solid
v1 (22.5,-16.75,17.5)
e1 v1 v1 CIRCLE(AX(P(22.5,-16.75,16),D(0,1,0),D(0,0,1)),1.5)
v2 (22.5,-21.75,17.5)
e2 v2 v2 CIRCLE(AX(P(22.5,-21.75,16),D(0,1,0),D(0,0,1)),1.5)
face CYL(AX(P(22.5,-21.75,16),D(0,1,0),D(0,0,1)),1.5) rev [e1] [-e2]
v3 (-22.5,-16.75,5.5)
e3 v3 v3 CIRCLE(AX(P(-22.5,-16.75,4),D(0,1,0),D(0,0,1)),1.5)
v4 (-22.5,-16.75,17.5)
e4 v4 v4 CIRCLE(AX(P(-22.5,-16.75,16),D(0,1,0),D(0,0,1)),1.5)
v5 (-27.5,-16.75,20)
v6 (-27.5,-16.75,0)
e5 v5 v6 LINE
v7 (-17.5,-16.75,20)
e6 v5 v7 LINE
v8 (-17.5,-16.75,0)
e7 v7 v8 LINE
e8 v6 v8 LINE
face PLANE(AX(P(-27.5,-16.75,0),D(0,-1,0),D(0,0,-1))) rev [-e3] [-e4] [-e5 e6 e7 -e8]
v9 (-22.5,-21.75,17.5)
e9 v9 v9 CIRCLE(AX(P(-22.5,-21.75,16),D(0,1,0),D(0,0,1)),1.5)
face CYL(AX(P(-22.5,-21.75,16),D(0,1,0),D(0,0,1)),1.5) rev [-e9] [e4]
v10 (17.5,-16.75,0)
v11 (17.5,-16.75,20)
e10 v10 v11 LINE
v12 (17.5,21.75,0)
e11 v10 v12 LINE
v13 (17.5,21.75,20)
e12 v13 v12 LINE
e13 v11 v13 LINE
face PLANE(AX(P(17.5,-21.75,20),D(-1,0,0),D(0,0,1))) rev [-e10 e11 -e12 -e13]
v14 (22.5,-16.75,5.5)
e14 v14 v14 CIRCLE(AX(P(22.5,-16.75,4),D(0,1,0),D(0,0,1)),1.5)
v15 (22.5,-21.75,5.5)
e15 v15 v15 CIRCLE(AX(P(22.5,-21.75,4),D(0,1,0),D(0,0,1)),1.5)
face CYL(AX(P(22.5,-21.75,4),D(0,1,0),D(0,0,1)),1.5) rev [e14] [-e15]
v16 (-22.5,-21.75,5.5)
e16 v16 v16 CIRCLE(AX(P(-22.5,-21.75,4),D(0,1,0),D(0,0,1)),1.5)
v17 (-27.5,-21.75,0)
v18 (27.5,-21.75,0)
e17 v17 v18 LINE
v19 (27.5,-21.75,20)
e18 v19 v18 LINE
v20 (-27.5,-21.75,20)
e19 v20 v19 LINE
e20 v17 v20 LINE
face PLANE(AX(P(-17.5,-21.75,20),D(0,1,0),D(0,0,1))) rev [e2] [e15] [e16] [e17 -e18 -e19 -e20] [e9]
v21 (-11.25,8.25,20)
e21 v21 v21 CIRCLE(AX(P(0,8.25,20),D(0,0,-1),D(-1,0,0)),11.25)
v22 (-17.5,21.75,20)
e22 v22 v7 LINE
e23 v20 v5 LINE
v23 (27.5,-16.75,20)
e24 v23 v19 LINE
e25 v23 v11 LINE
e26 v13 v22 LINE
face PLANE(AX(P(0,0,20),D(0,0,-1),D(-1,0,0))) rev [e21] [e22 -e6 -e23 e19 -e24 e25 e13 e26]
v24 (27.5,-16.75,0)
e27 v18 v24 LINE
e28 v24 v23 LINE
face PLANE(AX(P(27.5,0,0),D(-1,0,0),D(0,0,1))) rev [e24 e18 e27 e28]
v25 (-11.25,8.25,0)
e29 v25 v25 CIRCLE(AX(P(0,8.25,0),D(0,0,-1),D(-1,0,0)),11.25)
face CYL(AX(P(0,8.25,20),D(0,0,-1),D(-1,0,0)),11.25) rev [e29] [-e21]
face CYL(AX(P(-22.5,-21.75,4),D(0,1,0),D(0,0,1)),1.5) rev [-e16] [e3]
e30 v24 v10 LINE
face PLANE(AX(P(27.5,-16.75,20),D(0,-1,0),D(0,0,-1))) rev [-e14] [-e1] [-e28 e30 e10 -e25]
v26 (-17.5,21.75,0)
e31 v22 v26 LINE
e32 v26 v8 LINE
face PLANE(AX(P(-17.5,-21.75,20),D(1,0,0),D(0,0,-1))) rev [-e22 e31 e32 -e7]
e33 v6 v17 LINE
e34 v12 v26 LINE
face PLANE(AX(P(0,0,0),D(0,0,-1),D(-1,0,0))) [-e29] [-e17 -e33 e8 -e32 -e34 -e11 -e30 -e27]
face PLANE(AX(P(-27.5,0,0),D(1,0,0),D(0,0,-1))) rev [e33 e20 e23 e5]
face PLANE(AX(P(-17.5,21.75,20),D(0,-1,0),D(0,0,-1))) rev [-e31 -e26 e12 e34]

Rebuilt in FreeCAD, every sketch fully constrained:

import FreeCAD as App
import Part
import Sketcher
Q = App.Units.Quantity


def add_polygon(sketch, points):
    """Adds a closed chain of lines whose ends are joined by coincident constraints."""
    first, n = sketch.GeometryCount, len(points)
    for a, b in zip(points, points[1:] + points[:1]):
        sketch.addGeometry(Part.LineSegment(App.Vector(*a, 0), App.Vector(*b, 0)), False)
    for i in range(n):
        sketch.addConstraint(Sketcher.Constraint("Coincident", first + i, 2, first + (i + 1) % n, 1))

doc = App.newDocument("Part")
body = doc.addObject("PartDesign::Body", "Body")

# Sketch on XY plane
sketch1 = body.newObject("Sketcher::SketchObject", "Sketch")
sketch1.AttachmentSupport = (doc.getObject("XY_Plane"), [""])
sketch1.MapMode = "FlatFace"
add_polygon(sketch1, [(-18, 22), (-18, -22), (18, -22), (18, 22)])  # lines 0-3
sketch1.addConstraint([
    Sketcher.Constraint("Vertical", 0),
    Sketcher.Constraint("Horizontal", 1),
    Sketcher.Constraint("Vertical", 2),
    Sketcher.Constraint("Horizontal", 3),
    Sketcher.Constraint("Symmetric", 0, 2, 2, 2, -1, 1),
    Sketcher.Constraint("DistanceX", 1, 1, 1, 2, Q("35 mm")),
    Sketcher.Constraint("DistanceY", 0, 2, 0, 1, Q("43.5 mm")),
])
pad1 = body.newObject("PartDesign::Pad", "Pad")
pad1.Profile = sketch1
pad1.Length = 20

# Sketch on YZ plane
sketch2 = body.newObject("Sketcher::SketchObject", "Sketch001")
sketch2.AttachmentSupport = (doc.getObject("YZ_Plane"), [""])
sketch2.MapMode = "FlatFace"
sketch2.AttachmentOffset = App.Placement(App.Vector(0, 0, 17.5), App.Rotation())
add_polygon(sketch2, [(-17, 20), (-22, 20), (-22, 0), (-17, 0)])  # lines 0-3
sketch2.addConstraint([
    Sketcher.Constraint("Horizontal", 0),
    Sketcher.Constraint("Vertical", 1),
    Sketcher.Constraint("Horizontal", 2),
    Sketcher.Constraint("Vertical", 3),
    Sketcher.Constraint("PointOnObject", 1, 2, -1),
    Sketcher.Constraint("DistanceX", 0, 2, 0, 1, Q("5 mm")),
    Sketcher.Constraint("DistanceY", 1, 2, 1, 1, Q("20 mm")),
    Sketcher.Constraint("DistanceX", 0, 2, -1, 1, Q("21.75 mm")),
])
pad2 = body.newObject("PartDesign::Pad", "Pad001")
pad2.Profile = sketch2
pad2.Length = 10

# Sketch on YZ plane
sketch3 = body.newObject("Sketcher::SketchObject", "Sketch002")
sketch3.AttachmentSupport = (doc.getObject("YZ_Plane"), [""])
sketch3.MapMode = "FlatFace"
sketch3.AttachmentOffset = App.Placement(App.Vector(0, 0, -17.5), App.Rotation())
add_polygon(sketch3, [(-17, 0), (-22, 0), (-22, 20), (-17, 20)])  # lines 0-3
sketch3.addConstraint([
    Sketcher.Constraint("Horizontal", 0),
    Sketcher.Constraint("Vertical", 1),
    Sketcher.Constraint("Horizontal", 2),
    Sketcher.Constraint("Vertical", 3),
    Sketcher.Constraint("PointOnObject", 0, 2, -1),
    Sketcher.Constraint("DistanceX", 0, 2, 0, 1, Q("5 mm")),
    Sketcher.Constraint("DistanceY", 1, 1, 1, 2, Q("20 mm")),
    Sketcher.Constraint("DistanceX", 0, 2, -1, 1, Q("21.75 mm")),
])
pad3 = body.newObject("PartDesign::Pad", "Pad002")
pad3.Profile = sketch3
pad3.Length = 10
pad3.Reversed = True

# Sketch on XZ plane
sketch4 = body.newObject("Sketcher::SketchObject", "Sketch003")
sketch4.AttachmentSupport = (doc.getObject("XZ_Plane"), [""])
sketch4.MapMode = "FlatFace"
sketch4.AttachmentOffset = App.Placement(App.Vector(0, 0, 16.75), App.Rotation())
sketch4.addGeometry([
    Part.Circle(App.Vector(-22.5, 16, 0), App.Vector(0, 0, 1), 1.5),
    Part.Circle(App.Vector(-22.5, 4, 0), App.Vector(0, 0, 1), 1.5),
    Part.Circle(App.Vector(22.5, 16, 0), App.Vector(0, 0, 1), 1.5),
    Part.Circle(App.Vector(22.5, 4, 0), App.Vector(0, 0, 1), 1.5),
], False)
sketch4.addConstraint([
    Sketcher.Constraint("Equal", 0, 1),
    Sketcher.Constraint("Equal", 1, 2),
    Sketcher.Constraint("Equal", 2, 3),
    Sketcher.Constraint("Symmetric", 0, 3, 2, 3, -2),
    Sketcher.Constraint("Symmetric", 1, 3, 3, 3, -2),
    Sketcher.Constraint("Vertical", 0, 3, 1, 3),
    Sketcher.Constraint("Diameter", 0, Q("3 mm")),
    Sketcher.Constraint("DistanceY", -1, 1, 0, 3, Q("16 mm")),
    Sketcher.Constraint("DistanceY", -1, 1, 1, 3, Q("4 mm")),
    Sketcher.Constraint("DistanceX", 0, 3, 2, 3, Q("45 mm")),
])
pocket1 = body.newObject("PartDesign::Pocket", "Pocket")
pocket1.Profile = sketch4
pocket1.Length = 5
pocket1.Reversed = True

# Sketch on XY plane
sketch5 = body.newObject("Sketcher::SketchObject", "Sketch004")
sketch5.AttachmentSupport = (doc.getObject("XY_Plane"), [""])
sketch5.MapMode = "FlatFace"
sketch5.addGeometry(Part.Circle(App.Vector(0, 8, 0), App.Vector(0, 0, 1), 11), False)
sketch5.addConstraint([
    Sketcher.Constraint("PointOnObject", 0, 3, -2),
    Sketcher.Constraint("Diameter", 0, Q("22.5 mm")),
    Sketcher.Constraint("DistanceY", -1, 1, 0, 3, Q("8.25 mm")),
])
pocket2 = body.newObject("PartDesign::Pocket", "Pocket001")
pocket2.Profile = sketch5
pocket2.Length = 20
pocket2.Reversed = True

doc.recompute()
